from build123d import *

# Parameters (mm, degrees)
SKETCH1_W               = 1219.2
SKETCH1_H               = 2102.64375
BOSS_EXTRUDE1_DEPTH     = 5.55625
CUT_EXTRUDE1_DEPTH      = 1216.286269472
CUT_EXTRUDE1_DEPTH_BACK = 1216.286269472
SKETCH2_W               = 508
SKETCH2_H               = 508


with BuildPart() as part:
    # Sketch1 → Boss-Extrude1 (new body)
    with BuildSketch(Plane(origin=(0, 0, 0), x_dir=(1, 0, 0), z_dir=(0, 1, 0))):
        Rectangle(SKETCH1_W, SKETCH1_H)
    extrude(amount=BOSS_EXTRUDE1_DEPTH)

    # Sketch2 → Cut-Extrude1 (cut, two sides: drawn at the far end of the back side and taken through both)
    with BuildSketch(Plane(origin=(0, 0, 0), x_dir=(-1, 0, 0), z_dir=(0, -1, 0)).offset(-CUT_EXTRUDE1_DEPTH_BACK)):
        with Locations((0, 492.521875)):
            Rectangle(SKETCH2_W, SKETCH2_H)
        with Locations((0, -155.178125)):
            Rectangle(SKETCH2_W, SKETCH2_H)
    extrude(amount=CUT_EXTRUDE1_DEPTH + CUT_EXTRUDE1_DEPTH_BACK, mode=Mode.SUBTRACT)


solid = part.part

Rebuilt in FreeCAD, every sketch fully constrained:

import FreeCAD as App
import Part
import Sketcher
Q = App.Units.Quantity

doc = App.newDocument("Part")
params = doc.addObject("Spreadsheet::Sheet", "Params")
for row, (alias, value) in enumerate([
    ("sketch1_width", "48 in"),
    ("sketch1_height", "82.78125 in"),
    ("pad1_length", "0.21875 in"),
    ("sketch2_width", "20 in"),
], start=1):
    params.set(f"A{row}", alias)
    params.set(f"B{row}", "=" + value)
    params.setAlias(f"B{row}", alias)

body = doc.addObject("PartDesign::Body", "Body")

# Sketch on XZ plane
sketch1 = body.newObject("Sketcher::SketchObject", "Sketch")
sketch1.AttachmentSupport = (doc.getObject("XZ_Plane"), [""])
sketch1.MapMode = "FlatFace"
sketch1.addGeometry(Part.LineSegment(App.Vector(-610, -1051, 0), App.Vector(-610, 1051, 0)), False)
sketch1.addGeometry(Part.LineSegment(App.Vector(-610, 1051, 0), App.Vector(610, 1051, 0)), False)
sketch1.addGeometry(Part.LineSegment(App.Vector(610, 1051, 0), App.Vector(610, -1051, 0)), False)
sketch1.addGeometry(Part.LineSegment(App.Vector(610, -1051, 0), App.Vector(-610, -1051, 0)), False)
sketch1.addConstraint(Sketcher.Constraint("Coincident", 0, 2, 1, 1))
sketch1.addConstraint(Sketcher.Constraint("Coincident", 1, 2, 2, 1))
sketch1.addConstraint(Sketcher.Constraint("Coincident", 2, 2, 3, 1))
sketch1.addConstraint(Sketcher.Constraint("Coincident", 3, 2, 0, 1))
sketch1.addConstraint(Sketcher.Constraint("Vertical", 0))
sketch1.addConstraint(Sketcher.Constraint("Horizontal", 1))
sketch1.addConstraint(Sketcher.Constraint("Vertical", 2))
sketch1.addConstraint(Sketcher.Constraint("Horizontal", 3))
sketch1.addConstraint(Sketcher.Constraint("Symmetric", 0, 2, 2, 2, -1, 1))
sketch1.addConstraint(Sketcher.Constraint("DistanceX", 1, 1, 1, 2, Q("48 in")))
sketch1.addConstraint(Sketcher.Constraint("DistanceY", 0, 1, 0, 2, Q("82.78125 in")))
sketch1.setExpression("Constraints[9]", "Params.sketch1_width")
sketch1.setExpression("Constraints[10]", "Params.sketch1_height")
pad1 = body.newObject("PartDesign::Pad", "Pad")
pad1.Profile = sketch1
pad1.setExpression("Length", "Params.pad1_length")
pad1.Reversed = True

# Sketch on XZ plane
sketch2 = body.newObject("Sketcher::SketchObject", "Sketch001")
sketch2.AttachmentSupport = (doc.getObject("XZ_Plane"), [""])
sketch2.MapMode = "FlatFace"
sketch2.addGeometry(Part.LineSegment(App.Vector(254, -747, 0), App.Vector(254, -239, 0)), False)
sketch2.addGeometry(Part.LineSegment(App.Vector(254, -239, 0), App.Vector(-254, -239, 0)), False)
sketch2.addGeometry(Part.LineSegment(App.Vector(-254, -239, 0), App.Vector(-254, -747, 0)), False)
sketch2.addGeometry(Part.LineSegment(App.Vector(-254, -747, 0), App.Vector(254, -747, 0)), False)
sketch2.addGeometry(Part.LineSegment(App.Vector(254, -99, 0), App.Vector(254, 409, 0)), False)
sketch2.addGeometry(Part.LineSegment(App.Vector(254, 409, 0), App.Vector(-254, 409, 0)), False)
sketch2.addGeometry(Part.LineSegment(App.Vector(-254, 409, 0), App.Vector(-254, -99, 0)), False)
sketch2.addGeometry(Part.LineSegment(App.Vector(-254, -99, 0), App.Vector(254, -99, 0)), False)
sketch2.addConstraint(Sketcher.Constraint("Coincident", 0, 2, 1, 1))
sketch2.addConstraint(Sketcher.Constraint("Coincident", 1, 2, 2, 1))
sketch2.addConstraint(Sketcher.Constraint("Coincident", 2, 2, 3, 1))
sketch2.addConstraint(Sketcher.Constraint("Coincident", 3, 2, 0, 1))
sketch2.addConstraint(Sketcher.Constraint("Coincident", 4, 2, 5, 1))
sketch2.addConstraint(Sketcher.Constraint("Coincident", 5, 2, 6, 1))
sketch2.addConstraint(Sketcher.Constraint("Coincident", 6, 2, 7, 1))
sketch2.addConstraint(Sketcher.Constraint("Coincident", 7, 2, 4, 1))
sketch2.addConstraint(Sketcher.Constraint("Vertical", 0))
sketch2.addConstraint(Sketcher.Constraint("Horizontal", 1))
sketch2.addConstraint(Sketcher.Constraint("Vertical", 2))
sketch2.addConstraint(Sketcher.Constraint("Horizontal", 3))
sketch2.addConstraint(Sketcher.Constraint("Vertical", 4))
sketch2.addConstraint(Sketcher.Constraint("Horizontal", 5))
sketch2.addConstraint(Sketcher.Constraint("Vertical", 6))
sketch2.addConstraint(Sketcher.Constraint("Horizontal", 7))
sketch2.addConstraint(Sketcher.Constraint("Vertical", 3, 2, 4, 2))
sketch2.addConstraint(Sketcher.Constraint("Vertical", 2, 2, 5, 2))
sketch2.addConstraint(Sketcher.Constraint("Equal", 7, 0))
sketch2.addConstraint(Sketcher.Constraint("Equal", 2, 4))
sketch2.addConstraint(Sketcher.Constraint("DistanceX", 1, 2, 1, 1, Q("20 in")))
sketch2.addConstraint(Sketcher.Constraint("DistanceX", -1, 1, 0, 2, Q("10 in")))
sketch2.addConstraint(Sketcher.Constraint("DistanceY", 0, 2, 4, 2, Q("25.5 in")))
sketch2.addConstraint(Sketcher.Constraint("DistanceY", 0, 2, -1, 1, Q("9.390625 in")))
sketch2.setExpression("Constraints[20]", "Params.sketch2_width")
pocket1 = body.newObject("PartDesign::Pocket", "Pocket")
pocket1.Profile = sketch2
pocket1.Type = "ThroughAll"
pocket1.Midplane = True

doc.recompute()
